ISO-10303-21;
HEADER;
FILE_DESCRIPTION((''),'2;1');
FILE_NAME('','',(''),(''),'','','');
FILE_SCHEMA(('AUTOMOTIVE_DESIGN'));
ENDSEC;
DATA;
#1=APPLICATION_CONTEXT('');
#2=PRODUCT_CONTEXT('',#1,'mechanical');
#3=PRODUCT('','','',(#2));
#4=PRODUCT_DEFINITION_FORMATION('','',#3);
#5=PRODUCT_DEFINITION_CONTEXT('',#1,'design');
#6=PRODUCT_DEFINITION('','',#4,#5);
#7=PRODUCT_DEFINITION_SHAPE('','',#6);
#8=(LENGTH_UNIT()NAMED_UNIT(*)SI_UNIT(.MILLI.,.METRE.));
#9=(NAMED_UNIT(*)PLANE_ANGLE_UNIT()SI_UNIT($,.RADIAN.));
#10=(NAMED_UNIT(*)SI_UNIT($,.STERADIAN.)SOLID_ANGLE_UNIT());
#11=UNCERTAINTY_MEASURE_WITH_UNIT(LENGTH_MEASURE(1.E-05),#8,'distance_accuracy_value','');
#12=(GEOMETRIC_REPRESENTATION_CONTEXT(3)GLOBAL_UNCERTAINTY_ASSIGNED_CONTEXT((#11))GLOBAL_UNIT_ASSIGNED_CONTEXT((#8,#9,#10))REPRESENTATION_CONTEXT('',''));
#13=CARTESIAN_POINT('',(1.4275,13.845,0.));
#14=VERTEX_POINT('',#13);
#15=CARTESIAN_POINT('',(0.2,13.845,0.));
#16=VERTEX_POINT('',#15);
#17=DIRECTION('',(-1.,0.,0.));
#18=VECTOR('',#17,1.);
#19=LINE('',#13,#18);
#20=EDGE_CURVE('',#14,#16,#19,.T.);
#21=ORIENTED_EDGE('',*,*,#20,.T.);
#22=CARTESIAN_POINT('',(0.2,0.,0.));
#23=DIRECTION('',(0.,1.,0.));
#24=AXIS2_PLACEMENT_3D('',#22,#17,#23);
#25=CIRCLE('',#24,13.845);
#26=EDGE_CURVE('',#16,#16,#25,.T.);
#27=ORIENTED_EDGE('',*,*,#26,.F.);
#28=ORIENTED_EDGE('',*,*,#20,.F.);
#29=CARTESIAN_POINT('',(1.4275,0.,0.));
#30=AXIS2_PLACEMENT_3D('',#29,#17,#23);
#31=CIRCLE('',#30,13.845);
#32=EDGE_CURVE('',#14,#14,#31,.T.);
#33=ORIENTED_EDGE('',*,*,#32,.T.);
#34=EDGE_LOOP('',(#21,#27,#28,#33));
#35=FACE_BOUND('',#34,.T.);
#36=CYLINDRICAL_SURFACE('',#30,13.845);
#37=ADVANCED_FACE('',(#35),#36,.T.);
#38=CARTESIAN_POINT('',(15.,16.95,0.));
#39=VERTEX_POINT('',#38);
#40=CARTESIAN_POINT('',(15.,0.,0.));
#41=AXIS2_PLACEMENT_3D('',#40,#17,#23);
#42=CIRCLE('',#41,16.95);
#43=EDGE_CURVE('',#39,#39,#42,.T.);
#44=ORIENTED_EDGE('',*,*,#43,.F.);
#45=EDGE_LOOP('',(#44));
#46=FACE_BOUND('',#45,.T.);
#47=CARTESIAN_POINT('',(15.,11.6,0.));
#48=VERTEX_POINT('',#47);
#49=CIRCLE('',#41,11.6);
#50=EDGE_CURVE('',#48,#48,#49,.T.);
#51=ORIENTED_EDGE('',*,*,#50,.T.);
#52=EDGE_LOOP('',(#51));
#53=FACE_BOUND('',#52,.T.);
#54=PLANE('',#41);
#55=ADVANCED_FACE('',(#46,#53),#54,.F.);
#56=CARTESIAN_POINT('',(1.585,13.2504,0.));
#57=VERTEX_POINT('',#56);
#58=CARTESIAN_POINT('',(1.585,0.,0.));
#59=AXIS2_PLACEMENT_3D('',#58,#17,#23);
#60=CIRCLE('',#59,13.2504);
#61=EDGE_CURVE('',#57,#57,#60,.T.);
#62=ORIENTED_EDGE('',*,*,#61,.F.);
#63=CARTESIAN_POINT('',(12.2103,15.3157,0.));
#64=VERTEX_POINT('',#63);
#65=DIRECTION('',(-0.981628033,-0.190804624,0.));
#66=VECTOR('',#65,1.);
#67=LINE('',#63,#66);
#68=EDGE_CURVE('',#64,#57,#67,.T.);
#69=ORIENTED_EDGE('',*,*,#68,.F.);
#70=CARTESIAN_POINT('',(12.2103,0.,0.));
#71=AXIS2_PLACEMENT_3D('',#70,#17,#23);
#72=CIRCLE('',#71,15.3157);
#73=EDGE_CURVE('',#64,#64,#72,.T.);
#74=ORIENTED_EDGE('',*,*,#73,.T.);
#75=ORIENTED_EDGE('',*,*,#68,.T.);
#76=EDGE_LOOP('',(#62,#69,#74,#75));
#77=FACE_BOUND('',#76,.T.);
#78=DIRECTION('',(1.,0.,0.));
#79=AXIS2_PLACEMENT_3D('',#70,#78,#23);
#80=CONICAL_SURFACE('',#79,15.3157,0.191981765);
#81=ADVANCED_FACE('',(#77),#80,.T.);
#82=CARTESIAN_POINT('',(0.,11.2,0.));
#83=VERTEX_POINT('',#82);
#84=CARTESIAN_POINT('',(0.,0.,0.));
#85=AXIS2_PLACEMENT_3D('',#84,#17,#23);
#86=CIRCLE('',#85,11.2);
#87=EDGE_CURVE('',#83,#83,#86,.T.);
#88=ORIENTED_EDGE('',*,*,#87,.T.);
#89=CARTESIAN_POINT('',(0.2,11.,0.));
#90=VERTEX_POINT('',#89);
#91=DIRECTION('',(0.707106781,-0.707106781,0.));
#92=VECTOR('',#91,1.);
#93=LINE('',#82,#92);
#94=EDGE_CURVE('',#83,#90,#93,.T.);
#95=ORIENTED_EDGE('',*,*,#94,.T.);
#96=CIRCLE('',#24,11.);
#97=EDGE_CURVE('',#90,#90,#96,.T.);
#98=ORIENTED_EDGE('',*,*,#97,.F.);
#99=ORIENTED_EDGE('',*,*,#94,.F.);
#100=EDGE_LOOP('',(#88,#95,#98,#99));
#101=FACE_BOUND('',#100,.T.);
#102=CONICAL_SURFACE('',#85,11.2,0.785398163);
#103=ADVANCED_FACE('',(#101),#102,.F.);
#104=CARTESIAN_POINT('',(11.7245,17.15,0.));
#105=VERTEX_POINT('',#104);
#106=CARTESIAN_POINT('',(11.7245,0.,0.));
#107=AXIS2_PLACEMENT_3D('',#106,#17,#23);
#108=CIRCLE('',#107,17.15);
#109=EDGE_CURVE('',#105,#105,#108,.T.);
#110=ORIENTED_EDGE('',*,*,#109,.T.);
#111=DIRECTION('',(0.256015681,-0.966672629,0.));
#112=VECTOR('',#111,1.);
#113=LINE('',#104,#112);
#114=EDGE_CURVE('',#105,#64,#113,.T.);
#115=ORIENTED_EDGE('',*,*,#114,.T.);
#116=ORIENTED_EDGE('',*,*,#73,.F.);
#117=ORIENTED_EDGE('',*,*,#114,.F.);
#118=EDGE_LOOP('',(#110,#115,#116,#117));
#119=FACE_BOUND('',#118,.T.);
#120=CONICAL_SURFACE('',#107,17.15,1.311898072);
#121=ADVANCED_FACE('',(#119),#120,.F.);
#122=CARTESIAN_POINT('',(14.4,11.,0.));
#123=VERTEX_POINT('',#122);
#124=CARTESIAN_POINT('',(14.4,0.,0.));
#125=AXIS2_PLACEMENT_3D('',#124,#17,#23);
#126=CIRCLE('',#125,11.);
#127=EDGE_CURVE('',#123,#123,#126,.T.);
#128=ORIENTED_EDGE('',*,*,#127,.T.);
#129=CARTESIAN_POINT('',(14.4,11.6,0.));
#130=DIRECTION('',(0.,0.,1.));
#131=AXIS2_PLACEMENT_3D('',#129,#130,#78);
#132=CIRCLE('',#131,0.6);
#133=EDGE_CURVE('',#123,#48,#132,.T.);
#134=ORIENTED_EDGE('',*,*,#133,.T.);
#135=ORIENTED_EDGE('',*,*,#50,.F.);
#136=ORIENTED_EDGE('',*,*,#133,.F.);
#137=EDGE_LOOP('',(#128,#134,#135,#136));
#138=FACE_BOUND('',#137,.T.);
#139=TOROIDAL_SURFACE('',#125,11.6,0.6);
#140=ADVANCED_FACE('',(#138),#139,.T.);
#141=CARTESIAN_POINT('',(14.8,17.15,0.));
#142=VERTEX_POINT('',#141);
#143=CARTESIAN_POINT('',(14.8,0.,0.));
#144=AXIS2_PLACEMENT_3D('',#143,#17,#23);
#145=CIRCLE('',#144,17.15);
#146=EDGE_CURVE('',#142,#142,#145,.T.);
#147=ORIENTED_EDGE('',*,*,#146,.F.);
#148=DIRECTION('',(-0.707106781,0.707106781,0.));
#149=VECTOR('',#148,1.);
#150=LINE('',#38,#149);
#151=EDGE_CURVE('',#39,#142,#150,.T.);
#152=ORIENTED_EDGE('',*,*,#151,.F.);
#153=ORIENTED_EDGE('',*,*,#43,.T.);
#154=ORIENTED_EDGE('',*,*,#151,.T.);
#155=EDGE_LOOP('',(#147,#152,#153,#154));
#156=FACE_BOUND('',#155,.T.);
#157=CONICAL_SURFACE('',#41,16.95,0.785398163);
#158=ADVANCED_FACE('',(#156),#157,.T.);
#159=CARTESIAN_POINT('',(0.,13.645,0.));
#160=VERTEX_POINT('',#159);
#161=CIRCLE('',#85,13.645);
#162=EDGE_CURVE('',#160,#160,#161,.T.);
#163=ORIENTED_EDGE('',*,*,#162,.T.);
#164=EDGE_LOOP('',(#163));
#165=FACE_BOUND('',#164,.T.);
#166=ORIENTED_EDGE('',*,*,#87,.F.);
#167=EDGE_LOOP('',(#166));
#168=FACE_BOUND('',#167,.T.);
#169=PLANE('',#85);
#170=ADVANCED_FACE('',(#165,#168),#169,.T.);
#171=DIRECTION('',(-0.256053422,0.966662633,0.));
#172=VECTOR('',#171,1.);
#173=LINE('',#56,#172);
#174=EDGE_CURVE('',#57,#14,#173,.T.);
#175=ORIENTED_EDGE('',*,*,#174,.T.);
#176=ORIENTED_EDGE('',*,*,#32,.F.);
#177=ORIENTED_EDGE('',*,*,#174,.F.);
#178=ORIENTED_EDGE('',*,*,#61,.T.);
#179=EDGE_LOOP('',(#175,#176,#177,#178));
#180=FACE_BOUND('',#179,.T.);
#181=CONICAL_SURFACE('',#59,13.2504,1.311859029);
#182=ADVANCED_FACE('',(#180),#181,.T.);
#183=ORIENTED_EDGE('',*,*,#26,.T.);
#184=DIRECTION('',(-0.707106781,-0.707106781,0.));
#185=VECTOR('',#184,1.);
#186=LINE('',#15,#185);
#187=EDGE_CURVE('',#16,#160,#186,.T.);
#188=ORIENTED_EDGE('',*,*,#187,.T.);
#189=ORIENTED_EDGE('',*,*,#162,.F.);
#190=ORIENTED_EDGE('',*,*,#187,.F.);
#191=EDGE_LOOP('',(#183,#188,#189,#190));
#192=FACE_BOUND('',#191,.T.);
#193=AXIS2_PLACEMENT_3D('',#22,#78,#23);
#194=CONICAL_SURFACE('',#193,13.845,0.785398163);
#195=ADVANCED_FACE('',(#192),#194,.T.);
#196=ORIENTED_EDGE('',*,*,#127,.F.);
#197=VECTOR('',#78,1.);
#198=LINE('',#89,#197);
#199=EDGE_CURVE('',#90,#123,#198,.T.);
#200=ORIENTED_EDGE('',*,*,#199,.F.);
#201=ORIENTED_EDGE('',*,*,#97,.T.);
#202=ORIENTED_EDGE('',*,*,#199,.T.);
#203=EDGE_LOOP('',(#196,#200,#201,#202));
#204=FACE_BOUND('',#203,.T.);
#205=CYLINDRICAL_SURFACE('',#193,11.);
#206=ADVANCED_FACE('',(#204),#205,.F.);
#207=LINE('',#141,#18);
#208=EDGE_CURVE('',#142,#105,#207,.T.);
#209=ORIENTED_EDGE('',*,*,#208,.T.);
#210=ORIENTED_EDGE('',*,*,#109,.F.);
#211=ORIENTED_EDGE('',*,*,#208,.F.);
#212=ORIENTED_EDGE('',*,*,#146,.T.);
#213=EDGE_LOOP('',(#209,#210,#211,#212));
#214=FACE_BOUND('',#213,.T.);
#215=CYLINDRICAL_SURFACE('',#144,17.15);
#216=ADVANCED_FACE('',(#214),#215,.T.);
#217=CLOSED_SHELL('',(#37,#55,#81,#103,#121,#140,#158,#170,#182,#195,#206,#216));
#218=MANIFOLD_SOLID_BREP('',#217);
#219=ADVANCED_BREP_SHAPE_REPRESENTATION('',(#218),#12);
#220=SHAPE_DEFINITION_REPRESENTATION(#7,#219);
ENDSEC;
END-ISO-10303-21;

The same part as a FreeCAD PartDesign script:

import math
import FreeCAD as App
import Part
import Sketcher

V = App.Vector
Q = App.Units.Quantity

doc = App.newDocument("Part")
body = doc.addObject("PartDesign::Body", "Body")

sketch1 = body.newObject("Sketcher::SketchObject", "Sketch")
sketch1.AttachmentSupport = (doc.getObject("XY_Plane"), [""])
sketch1.MapMode = "FlatFace"
sketch1.addGeometry([
    Part.LineSegment(V(0, 13.64, 0), V(0, 11.2, 0)),
    Part.LineSegment(V(0, 11.2, 0), V(0.2, 11, 0)),
    Part.LineSegment(V(0.2, 11, 0), V(14.4, 11, 0)),
    Part.ArcOfCircle(Part.Circle(V(14.4, 11.6, 0), V(0, 0, 1), 0.6), math.radians(-90), math.radians(0)),
    Part.LineSegment(V(15, 11.6, 0), V(15, 16.95, 0)),
    Part.LineSegment(V(15, 16.95, 0), V(14.8, 17.15, 0)),
    Part.LineSegment(V(14.8, 17.15, 0), V(11.72, 17.15, 0)),
    Part.LineSegment(V(11.72, 17.15, 0), V(12.21, 15.32, 0)),
    Part.LineSegment(V(12.21, 15.32, 0), V(1.58, 13.25, 0)),
    Part.LineSegment(V(1.58, 13.25, 0), V(1.43, 13.85, 0)),
    Part.LineSegment(V(1.43, 13.85, 0), V(0.2, 13.85, 0)),
    Part.LineSegment(V(0.2, 13.85, 0), V(0, 13.64, 0)),
], False)
sketch1.addConstraint([
    Sketcher.Constraint("Coincident", 0, 2, 1, 1),
    Sketcher.Constraint("Coincident", 1, 2, 2, 1),
    Sketcher.Constraint("Tangent", 2, 2, 3, 1),
    Sketcher.Constraint("Tangent", 3, 2, 4, 1),
    Sketcher.Constraint("Coincident", 4, 2, 5, 1),
    Sketcher.Constraint("Coincident", 5, 2, 6, 1),
    Sketcher.Constraint("Coincident", 6, 2, 7, 1),
    Sketcher.Constraint("Coincident", 7, 2, 8, 1),
    Sketcher.Constraint("Coincident", 8, 2, 9, 1),
    Sketcher.Constraint("Coincident", 9, 2, 10, 1),
    Sketcher.Constraint("Coincident", 10, 2, 11, 1),
    Sketcher.Constraint("Coincident", 11, 2, 0, 1),
    Sketcher.Constraint("Vertical", 0),
    Sketcher.Constraint("Horizontal", 2),
    Sketcher.Constraint("Vertical", 4),
    Sketcher.Constraint("Horizontal", 6),
    Sketcher.Constraint("Horizontal", 10),
    Sketcher.Constraint("PointOnObject", 0, 2, -2),
    Sketcher.Constraint("Parallel", 1, 5),
    Sketcher.Constraint("Parallel", 7, 9),
    Sketcher.Constraint("Perpendicular", 5, 11),
    Sketcher.Constraint("Vertical", 1, 2, 10, 2),
    Sketcher.Constraint("Equal", 1, 5),
    Sketcher.Constraint("Equal", 5, 11),
    Sketcher.Constraint("Radius", 3, Q("0.6 mm")),
    Sketcher.Constraint("Angle", 8, Q("-169.0003 deg")),
    Sketcher.Constraint("DistanceX", 2, 1, 2, 2, Q("14.2 mm")),
    Sketcher.Constraint("DistanceY", -1, 1, 1, 2, Q("11 mm")),
    Sketcher.Constraint("DistanceX", -1, 1, 3, 2, Q("15 mm")),
    Sketcher.Constraint("DistanceY", 4, 1, 4, 2, Q("5.35 mm")),
    Sketcher.Constraint("DistanceY", 0, 2, 0, 1, Q("2.445 mm")),
    Sketcher.Constraint("Distance", 9, Q("0.615 mm")),
    Sketcher.Constraint("DistanceX", 6, 2, 6, 1, Q("3.0755 mm")),
    Sketcher.Constraint("DistanceX", 10, 2, 10, 1, Q("1.2275 mm")),
    Sketcher.Constraint("DistanceX", -1, 1, 8, 2, Q("1.585 mm")),
])
revolution = body.newObject("PartDesign::Revolution", "Revolution")
revolution.Profile = sketch1
revolution.ReferenceAxis = (sketch1, ["H_Axis"])
revolution.Angle = 360

doc.recompute()
